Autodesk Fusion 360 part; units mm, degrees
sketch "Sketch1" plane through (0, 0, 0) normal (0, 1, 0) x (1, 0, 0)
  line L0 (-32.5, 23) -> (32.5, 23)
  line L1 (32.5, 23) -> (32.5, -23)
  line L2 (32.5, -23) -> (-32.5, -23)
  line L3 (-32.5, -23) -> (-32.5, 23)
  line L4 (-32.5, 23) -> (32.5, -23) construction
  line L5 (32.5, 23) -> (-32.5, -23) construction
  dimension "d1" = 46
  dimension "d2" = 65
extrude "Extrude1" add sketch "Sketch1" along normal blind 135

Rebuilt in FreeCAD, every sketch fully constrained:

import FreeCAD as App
import Part
import Sketcher

V = App.Vector

doc = App.newDocument("Part")
params = doc.addObject("Spreadsheet::Sheet", "Params")
for row, (alias, value) in enumerate([
    ("sketch1_width", "65 mm"),
    ("sketch1_height", "46 mm"),
    ("pad1_length", "135 mm"),
], start=1):
    params.set(f"A{row}", alias)
    params.set(f"B{row}", "=" + value)
    params.setAlias(f"B{row}", alias)

body = doc.addObject("PartDesign::Body", "Body")

# Sketch on XZ plane
sketch1 = body.newObject("Sketcher::SketchObject", "Sketch")
sketch1.AttachmentSupport = (doc.getObject("XZ_Plane"), [""])
sketch1.MapMode = "FlatFace"
sketch1.addGeometry(Part.LineSegment(V(32, -23, 0), V(-32, -23, 0)), False)
sketch1.addGeometry(Part.LineSegment(V(-32, -23, 0), V(-32, 23, 0)), False)
sketch1.addGeometry(Part.LineSegment(V(-32, 23, 0), V(32, 23, 0)), False)
sketch1.addGeometry(Part.LineSegment(V(32, 23, 0), V(32, -23, 0)), False)
sketch1.addConstraint(Sketcher.Constraint("Coincident", 0, 2, 1, 1))
sketch1.addConstraint(Sketcher.Constraint("Coincident", 1, 2, 2, 1))
sketch1.addConstraint(Sketcher.Constraint("Coincident", 2, 2, 3, 1))
sketch1.addConstraint(Sketcher.Constraint("Coincident", 3, 2, 0, 1))
sketch1.addConstraint(Sketcher.Constraint("Horizontal", 0))
sketch1.addConstraint(Sketcher.Constraint("Vertical", 1))
sketch1.addConstraint(Sketcher.Constraint("Horizontal", 2))
sketch1.addConstraint(Sketcher.Constraint("Vertical", 3))
sketch1.addConstraint(Sketcher.Constraint("Symmetric", 0, 2, 2, 2, -1, 1))
sketch1.addConstraint(Sketcher.Constraint("DistanceX", 0, 2, 0, 1, 65.0))
sketch1.addConstraint(Sketcher.Constraint("DistanceY", 1, 1, 1, 2, 46.0))
sketch1.setExpression("Constraints[9]", "Params.sketch1_width")
sketch1.setExpression("Constraints[10]", "Params.sketch1_height")
pad1 = body.newObject("PartDesign::Pad", "Pad")
pad1.Profile = sketch1
pad1.setExpression("Length", "Params.pad1_length")
pad1.Reversed = True

doc.recompute()
